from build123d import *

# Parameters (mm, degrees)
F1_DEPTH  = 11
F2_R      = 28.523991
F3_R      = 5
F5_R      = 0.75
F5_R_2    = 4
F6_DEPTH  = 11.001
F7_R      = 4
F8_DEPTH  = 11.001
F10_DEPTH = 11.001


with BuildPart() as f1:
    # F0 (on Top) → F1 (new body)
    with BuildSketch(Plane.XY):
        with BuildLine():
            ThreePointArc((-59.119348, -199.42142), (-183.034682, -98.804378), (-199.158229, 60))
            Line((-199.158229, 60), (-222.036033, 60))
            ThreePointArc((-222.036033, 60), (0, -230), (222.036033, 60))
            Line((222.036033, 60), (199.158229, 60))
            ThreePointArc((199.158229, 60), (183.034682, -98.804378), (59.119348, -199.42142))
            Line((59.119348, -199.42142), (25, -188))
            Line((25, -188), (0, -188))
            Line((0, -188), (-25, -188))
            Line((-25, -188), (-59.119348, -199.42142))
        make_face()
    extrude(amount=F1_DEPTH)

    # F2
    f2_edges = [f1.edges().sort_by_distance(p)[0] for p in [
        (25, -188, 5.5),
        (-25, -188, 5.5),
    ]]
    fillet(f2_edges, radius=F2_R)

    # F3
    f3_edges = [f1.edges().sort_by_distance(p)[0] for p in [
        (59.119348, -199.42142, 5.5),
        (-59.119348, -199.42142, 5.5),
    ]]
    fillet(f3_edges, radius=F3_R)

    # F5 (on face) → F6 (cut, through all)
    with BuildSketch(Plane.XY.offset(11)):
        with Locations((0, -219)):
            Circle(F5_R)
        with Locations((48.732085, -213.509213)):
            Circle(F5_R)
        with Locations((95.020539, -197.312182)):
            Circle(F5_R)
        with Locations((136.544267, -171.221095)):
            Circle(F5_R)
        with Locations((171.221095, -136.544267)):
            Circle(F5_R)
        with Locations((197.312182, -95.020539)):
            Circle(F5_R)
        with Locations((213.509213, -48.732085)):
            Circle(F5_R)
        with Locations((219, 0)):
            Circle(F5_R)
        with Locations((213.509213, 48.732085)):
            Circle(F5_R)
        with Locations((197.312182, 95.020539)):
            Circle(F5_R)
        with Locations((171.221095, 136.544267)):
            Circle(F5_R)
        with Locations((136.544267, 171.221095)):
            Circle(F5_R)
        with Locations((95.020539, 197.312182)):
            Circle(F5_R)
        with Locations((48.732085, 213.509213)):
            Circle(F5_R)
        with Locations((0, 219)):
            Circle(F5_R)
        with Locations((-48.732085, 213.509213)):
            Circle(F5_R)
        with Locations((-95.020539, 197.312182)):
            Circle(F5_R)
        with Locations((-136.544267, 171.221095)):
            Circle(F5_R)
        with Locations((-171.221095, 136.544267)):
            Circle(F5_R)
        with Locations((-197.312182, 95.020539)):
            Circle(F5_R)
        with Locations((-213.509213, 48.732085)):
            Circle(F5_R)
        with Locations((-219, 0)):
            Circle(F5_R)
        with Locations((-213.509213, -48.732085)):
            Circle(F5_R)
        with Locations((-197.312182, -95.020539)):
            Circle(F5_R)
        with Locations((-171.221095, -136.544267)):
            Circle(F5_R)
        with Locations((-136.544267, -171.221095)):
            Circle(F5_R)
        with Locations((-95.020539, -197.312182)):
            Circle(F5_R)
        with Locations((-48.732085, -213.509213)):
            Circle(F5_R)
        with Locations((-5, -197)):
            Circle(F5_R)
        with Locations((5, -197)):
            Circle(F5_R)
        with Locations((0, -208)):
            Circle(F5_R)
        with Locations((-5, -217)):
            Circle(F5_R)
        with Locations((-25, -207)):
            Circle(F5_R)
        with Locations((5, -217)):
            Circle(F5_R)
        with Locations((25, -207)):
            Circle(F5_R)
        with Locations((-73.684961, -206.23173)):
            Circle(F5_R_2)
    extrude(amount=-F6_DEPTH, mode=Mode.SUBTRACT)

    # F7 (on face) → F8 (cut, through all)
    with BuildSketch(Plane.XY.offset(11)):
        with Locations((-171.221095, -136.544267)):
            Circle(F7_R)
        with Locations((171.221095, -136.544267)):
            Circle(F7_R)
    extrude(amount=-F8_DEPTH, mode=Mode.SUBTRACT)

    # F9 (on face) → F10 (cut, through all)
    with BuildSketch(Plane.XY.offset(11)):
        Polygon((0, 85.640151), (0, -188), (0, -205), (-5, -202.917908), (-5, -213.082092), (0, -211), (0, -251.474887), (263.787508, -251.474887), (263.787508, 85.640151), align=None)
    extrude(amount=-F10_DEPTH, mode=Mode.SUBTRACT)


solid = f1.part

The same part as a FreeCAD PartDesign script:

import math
import FreeCAD as App
import Part
import Sketcher


def edges_at(feature, points):
    """Names of the edges that pass closest to the given points."""
    edges = feature.Shape.Edges
    near = lambda p: min(range(len(edges)), key=lambda i: edges[i].distToShape(Part.Vertex(*p))[0])
    return sorted({f"Edge{near(p) + 1}" for p in points})


def add_polygon(sketch, points):
    """Adds a closed chain of lines whose ends are joined by coincident constraints."""
    first, n = sketch.GeometryCount, len(points)
    for a, b in zip(points, points[1:] + points[:1]):
        sketch.addGeometry(Part.LineSegment(App.Vector(*a, 0), App.Vector(*b, 0)), False)
    for i in range(n):
        sketch.addConstraint(Sketcher.Constraint("Coincident", first + i, 2, first + (i + 1) % n, 1))

doc = App.newDocument("Part")
body = doc.addObject("PartDesign::Body", "Body")

# Sketch on XY plane
sketch1 = body.newObject("Sketcher::SketchObject", "Sketch")
sketch1.AttachmentSupport = (doc.getObject("XY_Plane"), [""])
sketch1.MapMode = "FlatFace"
sketch1.addGeometry([
    Part.ArcOfCircle(Part.Circle(App.Vector(0, 0, 0), App.Vector(0, 0, 1), 208), math.radians(163), math.radians(253)),  # 0
    Part.LineSegment(App.Vector(-199, 60, 0), App.Vector(-222, 60, 0)),  # 1
    Part.ArcOfCircle(Part.Circle(App.Vector(0, 0, 0), App.Vector(0, 0, 1), 230), math.radians(165), math.radians(375)),  # 2
    Part.LineSegment(App.Vector(222, 60, 0), App.Vector(199, 60, 0)),  # 3
    Part.ArcOfCircle(Part.Circle(App.Vector(0, 0, 0), App.Vector(0, 0, 1), 208), math.radians(-73), math.radians(17)),  # 4
    Part.LineSegment(App.Vector(59, -199, 0), App.Vector(25, -188, 0)),  # 5
    Part.LineSegment(App.Vector(25, -188, 0), App.Vector(-25, -188, 0)),  # 6
    Part.LineSegment(App.Vector(-25, -188, 0), App.Vector(-59, -199, 0)),  # 7
], False)
sketch1.addConstraint([
    Sketcher.Constraint("Coincident", 0, 1, 1, 1),
    Sketcher.Constraint("Coincident", 1, 2, 2, 1),
    Sketcher.Constraint("Coincident", 2, 2, 3, 1),
    Sketcher.Constraint("Coincident", 3, 2, 4, 2),
    Sketcher.Constraint("Coincident", 4, 1, 5, 1),
    Sketcher.Constraint("Coincident", 5, 2, 6, 1),
    Sketcher.Constraint("Coincident", 6, 2, 7, 1),
    Sketcher.Constraint("Coincident", 7, 2, 0, 2),
    Sketcher.Constraint("Horizontal", 1),
    Sketcher.Constraint("Horizontal", 3),
    Sketcher.Constraint("Horizontal", 6),
    Sketcher.Constraint("Coincident", 0, 3, -1, 1),
    Sketcher.Constraint("Coincident", 2, 3, -1, 1),
    Sketcher.Constraint("Coincident", 4, 3, -1, 1),
    Sketcher.Constraint("Equal", 0, 4),
    Sketcher.Constraint("Horizontal", 1, 2, 2, 2),
    Sketcher.Constraint("Horizontal", 4, 1, 7, 2),
    Sketcher.Constraint("Equal", 5, 7),
    Sketcher.Constraint("Radius", 0, 208.000001),
    Sketcher.Constraint("Radius", 2, 230.0),
    Sketcher.Constraint("DistanceX", 6, 2, 6, 1, 50.0),
    Sketcher.Constraint("DistanceY", -1, 1, 0, 1, 60.0),
    Sketcher.Constraint("DistanceY", 5, 2, -1, 1, 188.0),
    Sketcher.Constraint("DistanceX", -1, 1, 4, 1, 59.119348),
])
pad1 = body.newObject("PartDesign::Pad", "Pad")
pad1.Profile = sketch1
pad1.Length = 11
doc.recompute()

fillet = body.newObject("PartDesign::Fillet", "Fillet")
fillet.Base = (pad1, edges_at(pad1, [(25, -188, 5.5), (-25, -188, 5.5)]))
fillet.Radius = 28.523991
doc.recompute()

fillet2 = body.newObject("PartDesign::Fillet", "Fillet001")
fillet2.Base = (fillet, edges_at(fillet, [(59.119, -199.421, 5.5), (-59.119, -199.421, 5.5)]))
fillet2.Radius = 5

# Sketch on XY plane
sketch2 = body.newObject("Sketcher::SketchObject", "Sketch001")
sketch2.AttachmentSupport = (doc.getObject("XY_Plane"), [""])
sketch2.MapMode = "FlatFace"
sketch2.AttachmentOffset = App.Placement(App.Vector(0, 0, 11), App.Rotation())
sketch2.addGeometry([
    Part.Circle(App.Vector(0, -219, 0), App.Vector(0, 0, 1), 0.8),  # 0
    Part.Circle(App.Vector(48.7, -213.5, 0), App.Vector(0, 0, 1), 0.8),  # 1
    Part.Circle(App.Vector(95, -197.3, 0), App.Vector(0, 0, 1), 0.8),  # 2
    Part.Circle(App.Vector(136.5, -171.2, 0), App.Vector(0, 0, 1), 0.8),  # 3
    Part.Circle(App.Vector(171.2, -136.5, 0), App.Vector(0, 0, 1), 0.8),  # 4
    Part.Circle(App.Vector(197.3, -95, 0), App.Vector(0, 0, 1), 0.8),  # 5
    Part.Circle(App.Vector(213.5, -48.7, 0), App.Vector(0, 0, 1), 0.8),  # 6
    Part.Circle(App.Vector(219, 0, 0), App.Vector(0, 0, 1), 0.8),  # 7
    Part.Circle(App.Vector(213.5, 48.7, 0), App.Vector(0, 0, 1), 0.8),  # 8
    Part.Circle(App.Vector(197.3, 95, 0), App.Vector(0, 0, 1), 0.8),  # 9
    Part.Circle(App.Vector(171.2, 136.5, 0), App.Vector(0, 0, 1), 0.8),  # 10
    Part.Circle(App.Vector(136.5, 171.2, 0), App.Vector(0, 0, 1), 0.8),  # 11
    Part.Circle(App.Vector(95, 197.3, 0), App.Vector(0, 0, 1), 0.8),  # 12
    Part.Circle(App.Vector(48.7, 213.5, 0), App.Vector(0, 0, 1), 0.8),  # 13
    Part.Circle(App.Vector(0, 219, 0), App.Vector(0, 0, 1), 0.8),  # 14
    Part.Circle(App.Vector(-48.7, 213.5, 0), App.Vector(0, 0, 1), 0.8),  # 15
    Part.Circle(App.Vector(-95, 197.3, 0), App.Vector(0, 0, 1), 0.8),  # 16
    Part.Circle(App.Vector(-136.5, 171.2, 0), App.Vector(0, 0, 1), 0.8),  # 17
    Part.Circle(App.Vector(-171.2, 136.5, 0), App.Vector(0, 0, 1), 0.8),  # 18
    Part.Circle(App.Vector(-197.3, 95, 0), App.Vector(0, 0, 1), 0.8),  # 19
    Part.Circle(App.Vector(-213.5, 48.7, 0), App.Vector(0, 0, 1), 0.8),  # 20
    Part.Circle(App.Vector(-219, 0, 0), App.Vector(0, 0, 1), 0.8),  # 21
    Part.Circle(App.Vector(-213.5, -48.7, 0), App.Vector(0, 0, 1), 0.8),  # 22
    Part.Circle(App.Vector(-197.3, -95, 0), App.Vector(0, 0, 1), 0.8),  # 23
    Part.Circle(App.Vector(-171.2, -136.5, 0), App.Vector(0, 0, 1), 0.8),  # 24
    Part.Circle(App.Vector(-136.5, -171.2, 0), App.Vector(0, 0, 1), 0.8),  # 25
    Part.Circle(App.Vector(-95, -197.3, 0), App.Vector(0, 0, 1), 0.8),  # 26
    Part.Circle(App.Vector(-48.7, -213.5, 0), App.Vector(0, 0, 1), 0.8),  # 27
    Part.Circle(App.Vector(-5, -197, 0), App.Vector(0, 0, 1), 0.8),  # 28
    Part.Circle(App.Vector(5, -197, 0), App.Vector(0, 0, 1), 0.8),  # 29
    Part.Circle(App.Vector(0, -208, 0), App.Vector(0, 0, 1), 0.8),  # 30
    Part.Circle(App.Vector(-5, -217, 0), App.Vector(0, 0, 1), 0.8),  # 31
    Part.Circle(App.Vector(-25, -207, 0), App.Vector(0, 0, 1), 0.8),  # 32
    Part.Circle(App.Vector(5, -217, 0), App.Vector(0, 0, 1), 0.8),  # 33
    Part.Circle(App.Vector(25, -207, 0), App.Vector(0, 0, 1), 0.8),  # 34
    Part.Circle(App.Vector(-73.7, -206.2, 0), App.Vector(0, 0, 1), 4),  # 35
], False)
sketch2.addConstraint([
    Sketcher.Constraint("Equal", 0, 1),
    Sketcher.Constraint("Equal", 1, 2),
    Sketcher.Constraint("Equal", 2, 3),
    Sketcher.Constraint("Equal", 3, 4),
    Sketcher.Constraint("Equal", 4, 5),
    Sketcher.Constraint("Equal", 5, 6),
    Sketcher.Constraint("Equal", 6, 7),
    Sketcher.Constraint("Equal", 7, 8),
    Sketcher.Constraint("Equal", 8, 9),
    Sketcher.Constraint("Equal", 9, 10),
    Sketcher.Constraint("Equal", 10, 11),
    Sketcher.Constraint("Equal", 11, 12),
    Sketcher.Constraint("Equal", 12, 13),
    Sketcher.Constraint("Equal", 13, 14),
    Sketcher.Constraint("Equal", 14, 15),
    Sketcher.Constraint("Equal", 15, 16),
    Sketcher.Constraint("Equal", 16, 17),
    Sketcher.Constraint("Equal", 17, 18),
    Sketcher.Constraint("Equal", 18, 19),
    Sketcher.Constraint("Equal", 19, 20),
    Sketcher.Constraint("Equal", 20, 21),
    Sketcher.Constraint("Equal", 21, 22),
    Sketcher.Constraint("Equal", 22, 23),
    Sketcher.Constraint("Equal", 23, 24),
    Sketcher.Constraint("Equal", 24, 25),
    Sketcher.Constraint("Equal", 25, 26),
    Sketcher.Constraint("Equal", 26, 27),
    Sketcher.Constraint("Equal", 27, 28),
    Sketcher.Constraint("Equal", 28, 29),
    Sketcher.Constraint("Equal", 29, 30),
    Sketcher.Constraint("Equal", 30, 31),
    Sketcher.Constraint("Equal", 31, 32),
    Sketcher.Constraint("Equal", 32, 33),
    Sketcher.Constraint("Equal", 33, 34),
    Sketcher.Constraint("Symmetric", 0, 3, 14, 3, -1, 1),
    Sketcher.Constraint("Symmetric", 1, 3, 15, 3, -1, 1),
    Sketcher.Constraint("Symmetric", 2, 3, 16, 3, -1, 1),
    Sketcher.Constraint("Symmetric", 3, 3, 17, 3, -1, 1),
    Sketcher.Constraint("Symmetric", 4, 3, 18, 3, -1, 1),
    Sketcher.Constraint("Symmetric", 5, 3, 19, 3, -1, 1),
    Sketcher.Constraint("Symmetric", 6, 3, 20, 3, -1, 1),
    Sketcher.Constraint("Symmetric", 7, 3, 21, 3, -1, 1),
    Sketcher.Constraint("Symmetric", 8, 3, 22, 3, -1, 1),
    Sketcher.Constraint("Symmetric", 9, 3, 23, 3, -1, 1),
    Sketcher.Constraint("Symmetric", 10, 3, 24, 3, -1, 1),
    Sketcher.Constraint("Symmetric", 11, 3, 25, 3, -1, 1),
    Sketcher.Constraint("Symmetric", 12, 3, 26, 3, -1, 1),
    Sketcher.Constraint("Symmetric", 13, 3, 27, 3, -1, 1),
    Sketcher.Constraint("Symmetric", 13, 3, 15, 3, -2),
    Sketcher.Constraint("Symmetric", 12, 3, 16, 3, -2),
    Sketcher.Constraint("Symmetric", 11, 3, 17, 3, -2),
    Sketcher.Constraint("Symmetric", 10, 3, 18, 3, -2),
    Sketcher.Constraint("Symmetric", 9, 3, 19, 3, -2),
    Sketcher.Constraint("Symmetric", 8, 3, 20, 3, -2),
    Sketcher.Constraint("Symmetric", 28, 3, 29, 3, -2),
    Sketcher.Constraint("Symmetric", 31, 3, 33, 3, -2),
    Sketcher.Constraint("Symmetric", 32, 3, 34, 3, -2),
    Sketcher.Constraint("PointOnObject", 0, 3, -2),
    Sketcher.Constraint("PointOnObject", 7, 3, -1),
    Sketcher.Constraint("PointOnObject", 30, 3, -2),
    Sketcher.Constraint("Vertical", 28, 3, 31, 3),
    Sketcher.Constraint("Diameter", 35, 8.0),
    Sketcher.Constraint("Diameter", 0, 1.5),
    Sketcher.Constraint("DistanceY", 0, 3, -1, 1, 219.0),
    Sketcher.Constraint("DistanceX", -1, 1, 7, 3, 219.0),
    Sketcher.Constraint("DistanceX", 28, 3, -1, 1, 5.0),
    Sketcher.Constraint("DistanceY", 28, 3, -1, 1, 197.0),
    Sketcher.Constraint("DistanceY", 30, 3, -1, 1, 208.0),
    Sketcher.Constraint("DistanceY", 31, 3, -1, 1, 217.0),
    Sketcher.Constraint("DistanceX", 32, 3, -1, 1, 25.0),
    Sketcher.Constraint("DistanceY", 32, 3, -1, 1, 207.0),
    Sketcher.Constraint("DistanceX", -1, 1, 2, 3, 95.020539),
    Sketcher.Constraint("DistanceY", 2, 3, -1, 1, 197.312182),
    Sketcher.Constraint("DistanceX", -1, 1, 5, 3, 197.312182),
    Sketcher.Constraint("DistanceY", 5, 3, -1, 1, 95.020539),
    Sketcher.Constraint("DistanceX", 35, 3, -1, 1, 73.684961),
    Sketcher.Constraint("DistanceY", 35, 3, -1, 1, 206.23173),
    Sketcher.Constraint("DistanceY", 1, 3, 2, 3, 16.197031),
    Sketcher.Constraint("DistanceX", 1, 3, 3, 3, 87.812182),
    Sketcher.Constraint("DistanceX", 1, 3, 4, 3, 122.48901),
    Sketcher.Constraint("DistanceX", 5, 3, 6, 3, 16.197031),
    Sketcher.Constraint("DistanceY", 4, 3, 6, 3, 87.812182),
    Sketcher.Constraint("DistanceY", 3, 3, 6, 3, 122.48901),
    Sketcher.Constraint("DistanceX", 1, 3, 6, 3, 164.777128),
    Sketcher.Constraint("DistanceY", 1, 3, 6, 3, 164.777128),
])
pocket1 = body.newObject("PartDesign::Pocket", "Pocket")
pocket1.Profile = sketch2
pocket1.Type = "ThroughAll"

# Sketch on XY plane
sketch3 = body.newObject("Sketcher::SketchObject", "Sketch002")
sketch3.AttachmentSupport = (doc.getObject("XY_Plane"), [""])
sketch3.MapMode = "FlatFace"
sketch3.AttachmentOffset = App.Placement(App.Vector(0, 0, 11), App.Rotation())
sketch3.addGeometry([
    Part.Circle(App.Vector(-171.2, -136.5, 0), App.Vector(0, 0, 1), 4),
    Part.Circle(App.Vector(171.2, -136.5, 0), App.Vector(0, 0, 1), 4),
], False)
sketch3.addConstraint([
    Sketcher.Constraint("Equal", 0, 1),
    Sketcher.Constraint("Symmetric", 0, 3, 1, 3, -2),
    Sketcher.Constraint("Diameter", 0, 8.0),
    Sketcher.Constraint("DistanceX", 0, 3, 1, 3, 342.44219),
    Sketcher.Constraint("DistanceY", 0, 3, -1, 1, 136.544267),
])
pocket2 = body.newObject("PartDesign::Pocket", "Pocket001")
pocket2.Profile = sketch3
pocket2.Type = "ThroughAll"

# Sketch on XY plane
sketch4 = body.newObject("Sketcher::SketchObject", "Sketch003")
sketch4.AttachmentSupport = (doc.getObject("XY_Plane"), [""])
sketch4.MapMode = "FlatFace"
sketch4.AttachmentOffset = App.Placement(App.Vector(0, 0, 11), App.Rotation())
add_polygon(sketch4, [(0, 86), (0, -205), (-5, -203), (-5, -213), (0, -211), (0, -251), (264, -251), (264, 86)])  # lines 0-7
sketch4.addConstraint([
    Sketcher.Constraint("Vertical", 0),
    Sketcher.Constraint("Vertical", 2),
    Sketcher.Constraint("Vertical", 4),
    Sketcher.Constraint("Horizontal", 5),
    Sketcher.Constraint("Vertical", 6),
    Sketcher.Constraint("Horizontal", 7),
    Sketcher.Constraint("PointOnObject", 0, 2, -2),
    Sketcher.Constraint("PointOnObject", 3, 2, -2),
    Sketcher.Constraint("Equal", 1, 3),
    Sketcher.Constraint("DistanceY", 0, 2, -1, 1, 205.0),
    Sketcher.Constraint("DistanceX", 1, 2, -1, 1, 5.0),
    Sketcher.Constraint("DistanceY", 3, 2, -1, 1, 211.0),
    Sketcher.Constraint("DistanceX", 5, 1, 5, 2, 263.787508),
    Sketcher.Constraint("DistanceY", 0, 2, 0, 1, 290.640151),
    Sketcher.Constraint("DistanceY", 6, 1, 6, 2, 337.115038),
    Sketcher.Constraint("Distance", 1, 5.416189),
])
pocket3 = body.newObject("PartDesign::Pocket", "Pocket002")
pocket3.Profile = sketch4
pocket3.Type = "ThroughAll"

doc.recompute()
